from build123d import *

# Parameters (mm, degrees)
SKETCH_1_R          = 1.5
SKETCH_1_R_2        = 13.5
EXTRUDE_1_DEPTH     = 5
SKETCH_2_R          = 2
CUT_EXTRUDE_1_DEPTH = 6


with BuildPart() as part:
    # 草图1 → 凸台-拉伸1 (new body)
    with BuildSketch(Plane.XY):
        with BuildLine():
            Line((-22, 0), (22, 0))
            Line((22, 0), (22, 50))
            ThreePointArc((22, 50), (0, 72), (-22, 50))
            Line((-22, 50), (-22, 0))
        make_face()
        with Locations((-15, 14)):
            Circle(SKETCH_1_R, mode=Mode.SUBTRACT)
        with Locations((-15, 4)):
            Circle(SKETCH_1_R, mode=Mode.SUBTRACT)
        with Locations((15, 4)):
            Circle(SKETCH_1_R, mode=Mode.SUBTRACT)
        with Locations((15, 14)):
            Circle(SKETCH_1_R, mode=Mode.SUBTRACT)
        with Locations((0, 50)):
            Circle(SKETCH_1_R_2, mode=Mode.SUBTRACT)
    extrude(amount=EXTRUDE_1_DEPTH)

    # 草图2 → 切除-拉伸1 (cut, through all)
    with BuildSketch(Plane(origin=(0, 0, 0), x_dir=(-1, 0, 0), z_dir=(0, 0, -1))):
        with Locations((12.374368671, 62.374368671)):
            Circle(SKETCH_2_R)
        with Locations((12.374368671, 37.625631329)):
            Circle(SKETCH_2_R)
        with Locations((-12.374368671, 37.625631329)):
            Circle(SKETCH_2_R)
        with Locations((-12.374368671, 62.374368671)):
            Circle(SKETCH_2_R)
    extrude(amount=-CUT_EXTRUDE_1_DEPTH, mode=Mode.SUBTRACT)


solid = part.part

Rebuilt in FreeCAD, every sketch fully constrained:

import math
import FreeCAD as App
import Part
import Sketcher

doc = App.newDocument("Part")
body = doc.addObject("PartDesign::Body", "Body")

sketch1 = doc.addObject("Sketcher::SketchObject", "Sketch")
body.addObject(sketch1)
sketch1.AttachmentSupport = (doc.XY_Plane, [""])
sketch1.MapMode = "FlatFace"
sketch1.addGeometry([
    Part.LineSegment(App.Vector(-22, 0, 0), App.Vector(22, 0, 0)),
    Part.LineSegment(App.Vector(22, 0, 0), App.Vector(22, 50, 0)),
    Part.ArcOfCircle(Part.Circle(App.Vector(0, 50, 0), App.Vector(0, 0, 1), 22), math.radians(0), math.radians(180)),
    Part.LineSegment(App.Vector(-22, 50, 0), App.Vector(-22, 0, 0)),
    Part.Circle(App.Vector(-15, 4, 0), App.Vector(0, 0, 1), 1.5),
    Part.Circle(App.Vector(-15, 14, 0), App.Vector(0, 0, 1), 1.5),
    Part.Circle(App.Vector(15, 4, 0), App.Vector(0, 0, 1), 1.5),
    Part.Circle(App.Vector(15, 14, 0), App.Vector(0, 0, 1), 1.5),
    Part.Circle(App.Vector(0, 50, 0), App.Vector(0, 0, 1), 13.5),
], False)
sketch1.addConstraint([
    Sketcher.Constraint("Coincident", 0, 2, 1, 1),
    Sketcher.Constraint("Tangent", 1, 2, 2, 1),
    Sketcher.Constraint("Tangent", 2, 2, 3, 1),
    Sketcher.Constraint("Coincident", 3, 2, 0, 1),
    Sketcher.Constraint("Horizontal", 0),
    Sketcher.Constraint("Vertical", 1),
    Sketcher.Constraint("Vertical", 3),
    Sketcher.Constraint("Coincident", 8, 3, 2, 3),
    Sketcher.Constraint("Equal", 4, 5),
    Sketcher.Constraint("Equal", 5, 6),
    Sketcher.Constraint("Equal", 6, 7),
    Sketcher.Constraint("Symmetric", 0, 2, 3, 2, -1, 1),
    Sketcher.Constraint("Symmetric", 4, 3, 6, 3, -2),
    Sketcher.Constraint("Symmetric", 5, 3, 7, 3, -2),
    Sketcher.Constraint("Vertical", 4, 3, 5, 3),
    Sketcher.Constraint("Diameter", 4, 3.0),
    Sketcher.Constraint("Diameter", 8, 27.0),
    Sketcher.Constraint("Radius", 2, 22.0),
    Sketcher.Constraint("DistanceY", 1, 1, 1, 2, 50.0),
    Sketcher.Constraint("DistanceX", 4, 3, -1, 1, 15.0),
    Sketcher.Constraint("DistanceY", -1, 1, 4, 3, 4.0),
    Sketcher.Constraint("DistanceY", -1, 1, 5, 3, 14.0),
])
pad1 = doc.addObject("PartDesign::Pad", "Pad")
body.addObject(pad1)
pad1.Profile = sketch1
pad1.Length = 5

sketch2 = doc.addObject("Sketcher::SketchObject", "Sketch001")
body.addObject(sketch2)
sketch2.AttachmentSupport = (doc.XY_Plane, [""])
sketch2.MapMode = "FlatFace"
sketch2.addGeometry([
    Part.Circle(App.Vector(-12.4, 62.4, 0), App.Vector(0, 0, 1), 2),
    Part.Circle(App.Vector(-12.4, 37.6, 0), App.Vector(0, 0, 1), 2),
    Part.Circle(App.Vector(12.4, 37.6, 0), App.Vector(0, 0, 1), 2),
    Part.Circle(App.Vector(12.4, 62.4, 0), App.Vector(0, 0, 1), 2),
], False)
sketch2.addConstraint([
    Sketcher.Constraint("Equal", 0, 1),
    Sketcher.Constraint("Equal", 1, 2),
    Sketcher.Constraint("Equal", 2, 3),
    Sketcher.Constraint("Symmetric", 1, 3, 2, 3, -2),
    Sketcher.Constraint("Symmetric", 0, 3, 3, 3, -2),
    Sketcher.Constraint("Vertical", 0, 3, 1, 3),
    Sketcher.Constraint("Diameter", 0, 4.0),
    Sketcher.Constraint("DistanceX", 0, 3, -1, 1, 12.374369),
    Sketcher.Constraint("DistanceY", -1, 1, 0, 3, 62.374369),
    Sketcher.Constraint("DistanceY", -1, 1, 1, 3, 37.625631),
])
pocket1 = doc.addObject("PartDesign::Pocket", "Pocket")
body.addObject(pocket1)
pocket1.Profile = sketch2
pocket1.Type = "ThroughAll"
pocket1.Reversed = True

doc.recompute()
